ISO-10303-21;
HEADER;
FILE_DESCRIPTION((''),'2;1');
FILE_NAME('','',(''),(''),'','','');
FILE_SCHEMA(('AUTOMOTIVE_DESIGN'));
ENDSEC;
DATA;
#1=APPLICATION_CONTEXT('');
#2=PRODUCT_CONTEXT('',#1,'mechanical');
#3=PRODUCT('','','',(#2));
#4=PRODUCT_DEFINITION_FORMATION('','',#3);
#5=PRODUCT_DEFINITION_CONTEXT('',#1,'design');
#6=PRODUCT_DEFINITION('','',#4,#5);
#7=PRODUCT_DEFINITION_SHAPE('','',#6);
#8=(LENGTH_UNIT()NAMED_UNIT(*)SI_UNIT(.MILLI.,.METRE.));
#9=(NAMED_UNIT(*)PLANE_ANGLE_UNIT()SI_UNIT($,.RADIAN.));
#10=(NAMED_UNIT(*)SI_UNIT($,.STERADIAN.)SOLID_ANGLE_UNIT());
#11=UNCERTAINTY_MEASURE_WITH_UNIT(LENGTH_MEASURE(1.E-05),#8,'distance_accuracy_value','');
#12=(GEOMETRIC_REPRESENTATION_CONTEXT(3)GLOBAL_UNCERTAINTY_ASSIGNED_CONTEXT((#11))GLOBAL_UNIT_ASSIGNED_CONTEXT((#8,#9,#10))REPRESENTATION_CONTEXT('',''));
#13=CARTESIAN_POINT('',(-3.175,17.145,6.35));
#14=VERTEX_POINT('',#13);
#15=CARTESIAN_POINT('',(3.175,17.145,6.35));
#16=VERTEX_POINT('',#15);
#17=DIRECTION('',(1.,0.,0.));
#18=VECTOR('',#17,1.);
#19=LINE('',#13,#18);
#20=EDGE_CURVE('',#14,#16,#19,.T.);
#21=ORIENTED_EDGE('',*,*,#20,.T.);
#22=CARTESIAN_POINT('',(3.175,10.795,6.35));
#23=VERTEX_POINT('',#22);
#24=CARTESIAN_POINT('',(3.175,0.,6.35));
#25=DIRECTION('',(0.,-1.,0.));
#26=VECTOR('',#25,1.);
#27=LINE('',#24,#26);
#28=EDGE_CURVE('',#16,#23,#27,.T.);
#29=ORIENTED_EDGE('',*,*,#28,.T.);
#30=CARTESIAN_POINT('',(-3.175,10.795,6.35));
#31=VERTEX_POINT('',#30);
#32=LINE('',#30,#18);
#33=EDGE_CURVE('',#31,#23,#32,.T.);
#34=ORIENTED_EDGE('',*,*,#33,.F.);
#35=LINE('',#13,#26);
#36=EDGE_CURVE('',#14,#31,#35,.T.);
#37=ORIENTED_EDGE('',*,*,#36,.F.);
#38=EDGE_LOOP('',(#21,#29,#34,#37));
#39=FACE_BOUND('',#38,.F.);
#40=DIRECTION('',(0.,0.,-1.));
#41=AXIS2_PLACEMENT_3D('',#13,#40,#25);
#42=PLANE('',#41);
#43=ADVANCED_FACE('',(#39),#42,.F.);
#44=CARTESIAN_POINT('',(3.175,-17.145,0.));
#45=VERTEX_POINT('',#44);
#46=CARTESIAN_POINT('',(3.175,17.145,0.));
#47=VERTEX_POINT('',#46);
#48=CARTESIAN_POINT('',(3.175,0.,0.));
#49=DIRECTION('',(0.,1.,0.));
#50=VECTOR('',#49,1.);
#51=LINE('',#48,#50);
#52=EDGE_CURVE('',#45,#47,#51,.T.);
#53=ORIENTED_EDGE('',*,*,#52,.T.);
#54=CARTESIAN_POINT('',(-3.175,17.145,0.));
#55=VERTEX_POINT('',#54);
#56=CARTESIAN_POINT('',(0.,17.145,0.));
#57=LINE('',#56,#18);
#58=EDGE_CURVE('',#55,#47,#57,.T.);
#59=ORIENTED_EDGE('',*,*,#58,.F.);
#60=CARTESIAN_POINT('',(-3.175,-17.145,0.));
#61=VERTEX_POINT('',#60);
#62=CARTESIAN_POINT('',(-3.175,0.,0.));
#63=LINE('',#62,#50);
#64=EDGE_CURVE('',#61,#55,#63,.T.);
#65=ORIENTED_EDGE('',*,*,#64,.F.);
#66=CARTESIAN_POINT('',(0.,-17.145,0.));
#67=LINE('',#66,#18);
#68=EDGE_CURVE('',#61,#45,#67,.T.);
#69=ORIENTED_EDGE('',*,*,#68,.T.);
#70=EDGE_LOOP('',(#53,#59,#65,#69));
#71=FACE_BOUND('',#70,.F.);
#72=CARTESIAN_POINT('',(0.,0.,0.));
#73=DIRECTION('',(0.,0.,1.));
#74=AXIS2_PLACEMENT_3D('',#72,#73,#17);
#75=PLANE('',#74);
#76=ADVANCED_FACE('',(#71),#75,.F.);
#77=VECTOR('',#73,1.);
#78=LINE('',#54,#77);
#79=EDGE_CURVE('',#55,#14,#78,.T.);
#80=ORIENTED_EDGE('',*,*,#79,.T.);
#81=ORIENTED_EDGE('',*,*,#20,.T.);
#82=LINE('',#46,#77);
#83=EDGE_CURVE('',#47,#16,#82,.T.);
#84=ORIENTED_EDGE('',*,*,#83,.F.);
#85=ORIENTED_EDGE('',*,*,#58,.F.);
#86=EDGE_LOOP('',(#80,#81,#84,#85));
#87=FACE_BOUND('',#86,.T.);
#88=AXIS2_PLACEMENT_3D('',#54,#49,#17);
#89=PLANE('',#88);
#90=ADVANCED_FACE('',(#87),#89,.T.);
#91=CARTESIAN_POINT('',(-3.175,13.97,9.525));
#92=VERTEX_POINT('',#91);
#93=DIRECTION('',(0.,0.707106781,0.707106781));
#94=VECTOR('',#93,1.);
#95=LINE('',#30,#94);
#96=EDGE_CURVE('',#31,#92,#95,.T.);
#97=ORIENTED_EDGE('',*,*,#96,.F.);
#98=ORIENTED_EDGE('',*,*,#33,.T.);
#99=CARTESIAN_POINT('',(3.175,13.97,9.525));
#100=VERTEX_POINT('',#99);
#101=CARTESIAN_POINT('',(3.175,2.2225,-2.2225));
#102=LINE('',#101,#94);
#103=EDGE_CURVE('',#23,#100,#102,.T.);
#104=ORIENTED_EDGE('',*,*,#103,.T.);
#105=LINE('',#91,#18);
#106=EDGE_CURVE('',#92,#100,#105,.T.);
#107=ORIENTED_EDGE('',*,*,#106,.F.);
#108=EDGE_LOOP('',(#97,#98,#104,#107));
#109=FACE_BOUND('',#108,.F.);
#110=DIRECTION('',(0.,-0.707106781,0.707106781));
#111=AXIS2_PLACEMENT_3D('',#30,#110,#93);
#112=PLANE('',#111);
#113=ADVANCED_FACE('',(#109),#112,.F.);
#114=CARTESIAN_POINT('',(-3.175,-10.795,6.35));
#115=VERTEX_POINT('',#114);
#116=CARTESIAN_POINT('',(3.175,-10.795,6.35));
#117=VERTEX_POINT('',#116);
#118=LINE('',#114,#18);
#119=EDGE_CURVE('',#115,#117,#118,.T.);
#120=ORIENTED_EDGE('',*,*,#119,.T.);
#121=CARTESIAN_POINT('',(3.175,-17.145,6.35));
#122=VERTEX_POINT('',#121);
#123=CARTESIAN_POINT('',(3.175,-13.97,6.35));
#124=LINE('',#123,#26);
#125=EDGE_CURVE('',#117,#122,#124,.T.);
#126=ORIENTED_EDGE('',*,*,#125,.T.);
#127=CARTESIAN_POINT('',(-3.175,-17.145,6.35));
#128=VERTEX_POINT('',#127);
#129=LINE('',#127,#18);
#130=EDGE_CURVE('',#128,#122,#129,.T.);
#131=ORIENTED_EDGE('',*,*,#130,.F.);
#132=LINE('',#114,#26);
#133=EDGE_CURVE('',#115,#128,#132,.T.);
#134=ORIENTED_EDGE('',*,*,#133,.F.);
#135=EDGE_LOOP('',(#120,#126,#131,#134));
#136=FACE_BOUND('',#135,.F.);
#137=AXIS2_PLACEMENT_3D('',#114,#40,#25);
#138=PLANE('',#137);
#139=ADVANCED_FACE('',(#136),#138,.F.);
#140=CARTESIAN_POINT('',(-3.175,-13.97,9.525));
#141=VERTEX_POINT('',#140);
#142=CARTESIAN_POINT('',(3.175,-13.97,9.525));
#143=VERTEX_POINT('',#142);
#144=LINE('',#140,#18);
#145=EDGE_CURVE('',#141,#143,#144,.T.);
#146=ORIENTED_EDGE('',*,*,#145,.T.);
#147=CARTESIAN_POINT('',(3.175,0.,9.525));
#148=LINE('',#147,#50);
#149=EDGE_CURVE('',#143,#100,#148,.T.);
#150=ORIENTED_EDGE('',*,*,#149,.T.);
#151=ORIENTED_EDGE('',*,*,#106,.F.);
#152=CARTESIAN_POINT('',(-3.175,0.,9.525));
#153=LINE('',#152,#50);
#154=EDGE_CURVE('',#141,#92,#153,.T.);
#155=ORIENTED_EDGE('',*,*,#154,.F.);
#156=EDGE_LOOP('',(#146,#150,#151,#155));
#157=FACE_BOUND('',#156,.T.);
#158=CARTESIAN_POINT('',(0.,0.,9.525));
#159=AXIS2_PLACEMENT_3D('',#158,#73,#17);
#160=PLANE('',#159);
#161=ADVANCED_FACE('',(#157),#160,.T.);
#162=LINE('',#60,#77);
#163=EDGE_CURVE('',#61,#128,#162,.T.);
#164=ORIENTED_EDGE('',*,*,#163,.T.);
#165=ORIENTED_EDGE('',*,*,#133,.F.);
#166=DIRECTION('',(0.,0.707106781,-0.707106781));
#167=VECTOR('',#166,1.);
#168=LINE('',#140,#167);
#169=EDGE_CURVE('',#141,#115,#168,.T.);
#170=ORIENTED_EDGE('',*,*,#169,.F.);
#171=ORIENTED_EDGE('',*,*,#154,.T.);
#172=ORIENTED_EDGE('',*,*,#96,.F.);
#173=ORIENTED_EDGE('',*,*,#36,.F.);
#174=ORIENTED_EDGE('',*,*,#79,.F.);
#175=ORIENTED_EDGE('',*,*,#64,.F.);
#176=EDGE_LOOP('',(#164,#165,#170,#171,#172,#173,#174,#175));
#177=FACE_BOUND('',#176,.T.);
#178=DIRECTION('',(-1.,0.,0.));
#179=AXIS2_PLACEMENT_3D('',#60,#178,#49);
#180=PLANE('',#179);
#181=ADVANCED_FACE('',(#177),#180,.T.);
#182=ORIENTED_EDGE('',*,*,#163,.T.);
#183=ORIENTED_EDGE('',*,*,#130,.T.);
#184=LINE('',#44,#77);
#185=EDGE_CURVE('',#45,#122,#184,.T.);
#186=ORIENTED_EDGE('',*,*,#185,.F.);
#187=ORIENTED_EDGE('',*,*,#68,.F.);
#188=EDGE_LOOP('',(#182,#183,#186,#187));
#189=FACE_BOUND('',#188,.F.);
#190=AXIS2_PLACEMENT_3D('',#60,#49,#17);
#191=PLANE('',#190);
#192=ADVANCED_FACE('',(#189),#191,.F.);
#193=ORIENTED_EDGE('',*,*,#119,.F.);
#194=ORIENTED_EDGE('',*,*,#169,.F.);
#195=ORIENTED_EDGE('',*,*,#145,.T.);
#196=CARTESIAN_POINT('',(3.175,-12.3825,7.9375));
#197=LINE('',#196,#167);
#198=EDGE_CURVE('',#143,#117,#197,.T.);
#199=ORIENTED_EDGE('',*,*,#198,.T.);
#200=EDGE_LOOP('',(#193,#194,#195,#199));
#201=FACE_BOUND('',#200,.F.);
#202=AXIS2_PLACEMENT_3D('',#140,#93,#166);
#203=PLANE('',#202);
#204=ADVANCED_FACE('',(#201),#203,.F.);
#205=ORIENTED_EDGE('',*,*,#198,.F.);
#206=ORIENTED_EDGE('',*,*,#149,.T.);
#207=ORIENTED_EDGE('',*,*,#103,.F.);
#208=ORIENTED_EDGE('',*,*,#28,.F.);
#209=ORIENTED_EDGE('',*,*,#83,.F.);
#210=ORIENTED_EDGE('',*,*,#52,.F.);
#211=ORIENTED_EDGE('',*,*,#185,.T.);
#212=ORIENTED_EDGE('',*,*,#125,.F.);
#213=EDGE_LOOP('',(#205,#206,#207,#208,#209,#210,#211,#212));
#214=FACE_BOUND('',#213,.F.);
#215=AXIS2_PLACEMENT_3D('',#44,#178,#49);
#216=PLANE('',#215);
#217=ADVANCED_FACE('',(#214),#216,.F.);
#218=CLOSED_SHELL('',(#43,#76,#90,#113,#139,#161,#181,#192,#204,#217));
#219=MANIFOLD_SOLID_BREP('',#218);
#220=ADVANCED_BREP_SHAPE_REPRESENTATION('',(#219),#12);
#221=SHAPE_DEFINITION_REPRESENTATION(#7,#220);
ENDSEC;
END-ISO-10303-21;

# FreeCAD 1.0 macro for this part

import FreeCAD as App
import Part
import Sketcher

V = App.Vector
Q = App.Units.Quantity

doc = App.newDocument("Part")
body = doc.addObject("PartDesign::Body", "Body")

# Sketch on XY plane
sketch1 = doc.addObject("Sketcher::SketchObject", "Sketch")
body.addObject(sketch1)
sketch1.AttachmentSupport = (doc.XY_Plane, [""])
sketch1.MapMode = "FlatFace"
sketch1.addGeometry(Part.LineSegment(V(-3, 17, 0), V(-3, -17, 0)), False)
sketch1.addGeometry(Part.LineSegment(V(-3, -17, 0), V(3, -17, 0)), False)
sketch1.addGeometry(Part.LineSegment(V(3, -17, 0), V(3, 17, 0)), False)
sketch1.addGeometry(Part.LineSegment(V(3, 17, 0), V(-3, 17, 0)), False)
sketch1.addConstraint(Sketcher.Constraint("Coincident", 0, 2, 1, 1))
sketch1.addConstraint(Sketcher.Constraint("Coincident", 1, 2, 2, 1))
sketch1.addConstraint(Sketcher.Constraint("Coincident", 2, 2, 3, 1))
sketch1.addConstraint(Sketcher.Constraint("Coincident", 3, 2, 0, 1))
sketch1.addConstraint(Sketcher.Constraint("Vertical", 0))
sketch1.addConstraint(Sketcher.Constraint("Horizontal", 1))
sketch1.addConstraint(Sketcher.Constraint("Vertical", 2))
sketch1.addConstraint(Sketcher.Constraint("Horizontal", 3))
sketch1.addConstraint(Sketcher.Constraint("Symmetric", 0, 2, 2, 2, -1, 1))
sketch1.addConstraint(Sketcher.Constraint("DistanceX", 1, 1, 1, 2, Q("0.25 in")))
sketch1.addConstraint(Sketcher.Constraint("DistanceY", 0, 2, 0, 1, Q("1.35 in")))
pad1 = doc.addObject("PartDesign::Pad", "Pad")
body.addObject(pad1)
pad1.Profile = sketch1
pad1.Length = Q("0.375 in")

# Sketch on YZ plane
sketch2 = doc.addObject("Sketcher::SketchObject", "Sketch001")
body.addObject(sketch2)
sketch2.AttachmentSupport = (doc.YZ_Plane, [""])
sketch2.MapMode = "FlatFace"
sketch2.AttachmentOffset = App.Placement(V(0, 0, -0.125 * 25.4), App.Rotation())
sketch2.addGeometry(Part.LineSegment(V(17.1, 9.5, 0), V(17.1, 6.3, 0)), False)
sketch2.addGeometry(Part.LineSegment(V(17.1, 6.3, 0), V(10.8, 6.3, 0)), False)
sketch2.addGeometry(Part.LineSegment(V(10.8, 6.3, 0), V(14, 9.5, 0)), False)
sketch2.addGeometry(Part.LineSegment(V(14, 9.5, 0), V(17.1, 9.5, 0)), False)
sketch2.addGeometry(Part.LineSegment(V(-17.1, 9.5, 0), V(-14, 9.5, 0)), False)
sketch2.addGeometry(Part.LineSegment(V(-14, 9.5, 0), V(-10.8, 6.3, 0)), False)
sketch2.addGeometry(Part.LineSegment(V(-10.8, 6.3, 0), V(-17.1, 6.3, 0)), False)
sketch2.addGeometry(Part.LineSegment(V(-17.1, 6.3, 0), V(-17.1, 9.5, 0)), False)
sketch2.addConstraint(Sketcher.Constraint("Coincident", 0, 2, 1, 1))
sketch2.addConstraint(Sketcher.Constraint("Coincident", 1, 2, 2, 1))
sketch2.addConstraint(Sketcher.Constraint("Coincident", 2, 2, 3, 1))
sketch2.addConstraint(Sketcher.Constraint("Coincident", 3, 2, 0, 1))
sketch2.addConstraint(Sketcher.Constraint("Coincident", 4, 2, 5, 1))
sketch2.addConstraint(Sketcher.Constraint("Coincident", 5, 2, 6, 1))
sketch2.addConstraint(Sketcher.Constraint("Coincident", 6, 2, 7, 1))
sketch2.addConstraint(Sketcher.Constraint("Coincident", 7, 2, 4, 1))
sketch2.addConstraint(Sketcher.Constraint("Vertical", 0))
sketch2.addConstraint(Sketcher.Constraint("Horizontal", 1))
sketch2.addConstraint(Sketcher.Constraint("Horizontal", 3))
sketch2.addConstraint(Sketcher.Constraint("Horizontal", 4))
sketch2.addConstraint(Sketcher.Constraint("Horizontal", 6))
sketch2.addConstraint(Sketcher.Constraint("Vertical", 7))
sketch2.addConstraint(Sketcher.Constraint("Symmetric", 2, 2, 4, 2, -2))
sketch2.addConstraint(Sketcher.Constraint("Symmetric", 1, 2, 5, 2, -2))
sketch2.addConstraint(Sketcher.Constraint("Perpendicular", 2, 5))
sketch2.addConstraint(Sketcher.Constraint("Equal", 3, 4))
sketch2.addConstraint(Sketcher.Constraint("Equal", 4, 0))
sketch2.addConstraint(Sketcher.Constraint("DistanceX", 1, 2, 1, 1, Q("0.25 in")))
sketch2.addConstraint(Sketcher.Constraint("DistanceX", 4, 2, 2, 2, Q("1.1 in")))
sketch2.addConstraint(Sketcher.Constraint("DistanceY", -1, 1, 0, 2, Q("0.25 in")))
pocket1 = doc.addObject("PartDesign::Pocket", "Pocket")
body.addObject(pocket1)
pocket1.Profile = sketch2
pocket1.Type = "ThroughAll"
pocket1.Reversed = True

doc.recompute()
